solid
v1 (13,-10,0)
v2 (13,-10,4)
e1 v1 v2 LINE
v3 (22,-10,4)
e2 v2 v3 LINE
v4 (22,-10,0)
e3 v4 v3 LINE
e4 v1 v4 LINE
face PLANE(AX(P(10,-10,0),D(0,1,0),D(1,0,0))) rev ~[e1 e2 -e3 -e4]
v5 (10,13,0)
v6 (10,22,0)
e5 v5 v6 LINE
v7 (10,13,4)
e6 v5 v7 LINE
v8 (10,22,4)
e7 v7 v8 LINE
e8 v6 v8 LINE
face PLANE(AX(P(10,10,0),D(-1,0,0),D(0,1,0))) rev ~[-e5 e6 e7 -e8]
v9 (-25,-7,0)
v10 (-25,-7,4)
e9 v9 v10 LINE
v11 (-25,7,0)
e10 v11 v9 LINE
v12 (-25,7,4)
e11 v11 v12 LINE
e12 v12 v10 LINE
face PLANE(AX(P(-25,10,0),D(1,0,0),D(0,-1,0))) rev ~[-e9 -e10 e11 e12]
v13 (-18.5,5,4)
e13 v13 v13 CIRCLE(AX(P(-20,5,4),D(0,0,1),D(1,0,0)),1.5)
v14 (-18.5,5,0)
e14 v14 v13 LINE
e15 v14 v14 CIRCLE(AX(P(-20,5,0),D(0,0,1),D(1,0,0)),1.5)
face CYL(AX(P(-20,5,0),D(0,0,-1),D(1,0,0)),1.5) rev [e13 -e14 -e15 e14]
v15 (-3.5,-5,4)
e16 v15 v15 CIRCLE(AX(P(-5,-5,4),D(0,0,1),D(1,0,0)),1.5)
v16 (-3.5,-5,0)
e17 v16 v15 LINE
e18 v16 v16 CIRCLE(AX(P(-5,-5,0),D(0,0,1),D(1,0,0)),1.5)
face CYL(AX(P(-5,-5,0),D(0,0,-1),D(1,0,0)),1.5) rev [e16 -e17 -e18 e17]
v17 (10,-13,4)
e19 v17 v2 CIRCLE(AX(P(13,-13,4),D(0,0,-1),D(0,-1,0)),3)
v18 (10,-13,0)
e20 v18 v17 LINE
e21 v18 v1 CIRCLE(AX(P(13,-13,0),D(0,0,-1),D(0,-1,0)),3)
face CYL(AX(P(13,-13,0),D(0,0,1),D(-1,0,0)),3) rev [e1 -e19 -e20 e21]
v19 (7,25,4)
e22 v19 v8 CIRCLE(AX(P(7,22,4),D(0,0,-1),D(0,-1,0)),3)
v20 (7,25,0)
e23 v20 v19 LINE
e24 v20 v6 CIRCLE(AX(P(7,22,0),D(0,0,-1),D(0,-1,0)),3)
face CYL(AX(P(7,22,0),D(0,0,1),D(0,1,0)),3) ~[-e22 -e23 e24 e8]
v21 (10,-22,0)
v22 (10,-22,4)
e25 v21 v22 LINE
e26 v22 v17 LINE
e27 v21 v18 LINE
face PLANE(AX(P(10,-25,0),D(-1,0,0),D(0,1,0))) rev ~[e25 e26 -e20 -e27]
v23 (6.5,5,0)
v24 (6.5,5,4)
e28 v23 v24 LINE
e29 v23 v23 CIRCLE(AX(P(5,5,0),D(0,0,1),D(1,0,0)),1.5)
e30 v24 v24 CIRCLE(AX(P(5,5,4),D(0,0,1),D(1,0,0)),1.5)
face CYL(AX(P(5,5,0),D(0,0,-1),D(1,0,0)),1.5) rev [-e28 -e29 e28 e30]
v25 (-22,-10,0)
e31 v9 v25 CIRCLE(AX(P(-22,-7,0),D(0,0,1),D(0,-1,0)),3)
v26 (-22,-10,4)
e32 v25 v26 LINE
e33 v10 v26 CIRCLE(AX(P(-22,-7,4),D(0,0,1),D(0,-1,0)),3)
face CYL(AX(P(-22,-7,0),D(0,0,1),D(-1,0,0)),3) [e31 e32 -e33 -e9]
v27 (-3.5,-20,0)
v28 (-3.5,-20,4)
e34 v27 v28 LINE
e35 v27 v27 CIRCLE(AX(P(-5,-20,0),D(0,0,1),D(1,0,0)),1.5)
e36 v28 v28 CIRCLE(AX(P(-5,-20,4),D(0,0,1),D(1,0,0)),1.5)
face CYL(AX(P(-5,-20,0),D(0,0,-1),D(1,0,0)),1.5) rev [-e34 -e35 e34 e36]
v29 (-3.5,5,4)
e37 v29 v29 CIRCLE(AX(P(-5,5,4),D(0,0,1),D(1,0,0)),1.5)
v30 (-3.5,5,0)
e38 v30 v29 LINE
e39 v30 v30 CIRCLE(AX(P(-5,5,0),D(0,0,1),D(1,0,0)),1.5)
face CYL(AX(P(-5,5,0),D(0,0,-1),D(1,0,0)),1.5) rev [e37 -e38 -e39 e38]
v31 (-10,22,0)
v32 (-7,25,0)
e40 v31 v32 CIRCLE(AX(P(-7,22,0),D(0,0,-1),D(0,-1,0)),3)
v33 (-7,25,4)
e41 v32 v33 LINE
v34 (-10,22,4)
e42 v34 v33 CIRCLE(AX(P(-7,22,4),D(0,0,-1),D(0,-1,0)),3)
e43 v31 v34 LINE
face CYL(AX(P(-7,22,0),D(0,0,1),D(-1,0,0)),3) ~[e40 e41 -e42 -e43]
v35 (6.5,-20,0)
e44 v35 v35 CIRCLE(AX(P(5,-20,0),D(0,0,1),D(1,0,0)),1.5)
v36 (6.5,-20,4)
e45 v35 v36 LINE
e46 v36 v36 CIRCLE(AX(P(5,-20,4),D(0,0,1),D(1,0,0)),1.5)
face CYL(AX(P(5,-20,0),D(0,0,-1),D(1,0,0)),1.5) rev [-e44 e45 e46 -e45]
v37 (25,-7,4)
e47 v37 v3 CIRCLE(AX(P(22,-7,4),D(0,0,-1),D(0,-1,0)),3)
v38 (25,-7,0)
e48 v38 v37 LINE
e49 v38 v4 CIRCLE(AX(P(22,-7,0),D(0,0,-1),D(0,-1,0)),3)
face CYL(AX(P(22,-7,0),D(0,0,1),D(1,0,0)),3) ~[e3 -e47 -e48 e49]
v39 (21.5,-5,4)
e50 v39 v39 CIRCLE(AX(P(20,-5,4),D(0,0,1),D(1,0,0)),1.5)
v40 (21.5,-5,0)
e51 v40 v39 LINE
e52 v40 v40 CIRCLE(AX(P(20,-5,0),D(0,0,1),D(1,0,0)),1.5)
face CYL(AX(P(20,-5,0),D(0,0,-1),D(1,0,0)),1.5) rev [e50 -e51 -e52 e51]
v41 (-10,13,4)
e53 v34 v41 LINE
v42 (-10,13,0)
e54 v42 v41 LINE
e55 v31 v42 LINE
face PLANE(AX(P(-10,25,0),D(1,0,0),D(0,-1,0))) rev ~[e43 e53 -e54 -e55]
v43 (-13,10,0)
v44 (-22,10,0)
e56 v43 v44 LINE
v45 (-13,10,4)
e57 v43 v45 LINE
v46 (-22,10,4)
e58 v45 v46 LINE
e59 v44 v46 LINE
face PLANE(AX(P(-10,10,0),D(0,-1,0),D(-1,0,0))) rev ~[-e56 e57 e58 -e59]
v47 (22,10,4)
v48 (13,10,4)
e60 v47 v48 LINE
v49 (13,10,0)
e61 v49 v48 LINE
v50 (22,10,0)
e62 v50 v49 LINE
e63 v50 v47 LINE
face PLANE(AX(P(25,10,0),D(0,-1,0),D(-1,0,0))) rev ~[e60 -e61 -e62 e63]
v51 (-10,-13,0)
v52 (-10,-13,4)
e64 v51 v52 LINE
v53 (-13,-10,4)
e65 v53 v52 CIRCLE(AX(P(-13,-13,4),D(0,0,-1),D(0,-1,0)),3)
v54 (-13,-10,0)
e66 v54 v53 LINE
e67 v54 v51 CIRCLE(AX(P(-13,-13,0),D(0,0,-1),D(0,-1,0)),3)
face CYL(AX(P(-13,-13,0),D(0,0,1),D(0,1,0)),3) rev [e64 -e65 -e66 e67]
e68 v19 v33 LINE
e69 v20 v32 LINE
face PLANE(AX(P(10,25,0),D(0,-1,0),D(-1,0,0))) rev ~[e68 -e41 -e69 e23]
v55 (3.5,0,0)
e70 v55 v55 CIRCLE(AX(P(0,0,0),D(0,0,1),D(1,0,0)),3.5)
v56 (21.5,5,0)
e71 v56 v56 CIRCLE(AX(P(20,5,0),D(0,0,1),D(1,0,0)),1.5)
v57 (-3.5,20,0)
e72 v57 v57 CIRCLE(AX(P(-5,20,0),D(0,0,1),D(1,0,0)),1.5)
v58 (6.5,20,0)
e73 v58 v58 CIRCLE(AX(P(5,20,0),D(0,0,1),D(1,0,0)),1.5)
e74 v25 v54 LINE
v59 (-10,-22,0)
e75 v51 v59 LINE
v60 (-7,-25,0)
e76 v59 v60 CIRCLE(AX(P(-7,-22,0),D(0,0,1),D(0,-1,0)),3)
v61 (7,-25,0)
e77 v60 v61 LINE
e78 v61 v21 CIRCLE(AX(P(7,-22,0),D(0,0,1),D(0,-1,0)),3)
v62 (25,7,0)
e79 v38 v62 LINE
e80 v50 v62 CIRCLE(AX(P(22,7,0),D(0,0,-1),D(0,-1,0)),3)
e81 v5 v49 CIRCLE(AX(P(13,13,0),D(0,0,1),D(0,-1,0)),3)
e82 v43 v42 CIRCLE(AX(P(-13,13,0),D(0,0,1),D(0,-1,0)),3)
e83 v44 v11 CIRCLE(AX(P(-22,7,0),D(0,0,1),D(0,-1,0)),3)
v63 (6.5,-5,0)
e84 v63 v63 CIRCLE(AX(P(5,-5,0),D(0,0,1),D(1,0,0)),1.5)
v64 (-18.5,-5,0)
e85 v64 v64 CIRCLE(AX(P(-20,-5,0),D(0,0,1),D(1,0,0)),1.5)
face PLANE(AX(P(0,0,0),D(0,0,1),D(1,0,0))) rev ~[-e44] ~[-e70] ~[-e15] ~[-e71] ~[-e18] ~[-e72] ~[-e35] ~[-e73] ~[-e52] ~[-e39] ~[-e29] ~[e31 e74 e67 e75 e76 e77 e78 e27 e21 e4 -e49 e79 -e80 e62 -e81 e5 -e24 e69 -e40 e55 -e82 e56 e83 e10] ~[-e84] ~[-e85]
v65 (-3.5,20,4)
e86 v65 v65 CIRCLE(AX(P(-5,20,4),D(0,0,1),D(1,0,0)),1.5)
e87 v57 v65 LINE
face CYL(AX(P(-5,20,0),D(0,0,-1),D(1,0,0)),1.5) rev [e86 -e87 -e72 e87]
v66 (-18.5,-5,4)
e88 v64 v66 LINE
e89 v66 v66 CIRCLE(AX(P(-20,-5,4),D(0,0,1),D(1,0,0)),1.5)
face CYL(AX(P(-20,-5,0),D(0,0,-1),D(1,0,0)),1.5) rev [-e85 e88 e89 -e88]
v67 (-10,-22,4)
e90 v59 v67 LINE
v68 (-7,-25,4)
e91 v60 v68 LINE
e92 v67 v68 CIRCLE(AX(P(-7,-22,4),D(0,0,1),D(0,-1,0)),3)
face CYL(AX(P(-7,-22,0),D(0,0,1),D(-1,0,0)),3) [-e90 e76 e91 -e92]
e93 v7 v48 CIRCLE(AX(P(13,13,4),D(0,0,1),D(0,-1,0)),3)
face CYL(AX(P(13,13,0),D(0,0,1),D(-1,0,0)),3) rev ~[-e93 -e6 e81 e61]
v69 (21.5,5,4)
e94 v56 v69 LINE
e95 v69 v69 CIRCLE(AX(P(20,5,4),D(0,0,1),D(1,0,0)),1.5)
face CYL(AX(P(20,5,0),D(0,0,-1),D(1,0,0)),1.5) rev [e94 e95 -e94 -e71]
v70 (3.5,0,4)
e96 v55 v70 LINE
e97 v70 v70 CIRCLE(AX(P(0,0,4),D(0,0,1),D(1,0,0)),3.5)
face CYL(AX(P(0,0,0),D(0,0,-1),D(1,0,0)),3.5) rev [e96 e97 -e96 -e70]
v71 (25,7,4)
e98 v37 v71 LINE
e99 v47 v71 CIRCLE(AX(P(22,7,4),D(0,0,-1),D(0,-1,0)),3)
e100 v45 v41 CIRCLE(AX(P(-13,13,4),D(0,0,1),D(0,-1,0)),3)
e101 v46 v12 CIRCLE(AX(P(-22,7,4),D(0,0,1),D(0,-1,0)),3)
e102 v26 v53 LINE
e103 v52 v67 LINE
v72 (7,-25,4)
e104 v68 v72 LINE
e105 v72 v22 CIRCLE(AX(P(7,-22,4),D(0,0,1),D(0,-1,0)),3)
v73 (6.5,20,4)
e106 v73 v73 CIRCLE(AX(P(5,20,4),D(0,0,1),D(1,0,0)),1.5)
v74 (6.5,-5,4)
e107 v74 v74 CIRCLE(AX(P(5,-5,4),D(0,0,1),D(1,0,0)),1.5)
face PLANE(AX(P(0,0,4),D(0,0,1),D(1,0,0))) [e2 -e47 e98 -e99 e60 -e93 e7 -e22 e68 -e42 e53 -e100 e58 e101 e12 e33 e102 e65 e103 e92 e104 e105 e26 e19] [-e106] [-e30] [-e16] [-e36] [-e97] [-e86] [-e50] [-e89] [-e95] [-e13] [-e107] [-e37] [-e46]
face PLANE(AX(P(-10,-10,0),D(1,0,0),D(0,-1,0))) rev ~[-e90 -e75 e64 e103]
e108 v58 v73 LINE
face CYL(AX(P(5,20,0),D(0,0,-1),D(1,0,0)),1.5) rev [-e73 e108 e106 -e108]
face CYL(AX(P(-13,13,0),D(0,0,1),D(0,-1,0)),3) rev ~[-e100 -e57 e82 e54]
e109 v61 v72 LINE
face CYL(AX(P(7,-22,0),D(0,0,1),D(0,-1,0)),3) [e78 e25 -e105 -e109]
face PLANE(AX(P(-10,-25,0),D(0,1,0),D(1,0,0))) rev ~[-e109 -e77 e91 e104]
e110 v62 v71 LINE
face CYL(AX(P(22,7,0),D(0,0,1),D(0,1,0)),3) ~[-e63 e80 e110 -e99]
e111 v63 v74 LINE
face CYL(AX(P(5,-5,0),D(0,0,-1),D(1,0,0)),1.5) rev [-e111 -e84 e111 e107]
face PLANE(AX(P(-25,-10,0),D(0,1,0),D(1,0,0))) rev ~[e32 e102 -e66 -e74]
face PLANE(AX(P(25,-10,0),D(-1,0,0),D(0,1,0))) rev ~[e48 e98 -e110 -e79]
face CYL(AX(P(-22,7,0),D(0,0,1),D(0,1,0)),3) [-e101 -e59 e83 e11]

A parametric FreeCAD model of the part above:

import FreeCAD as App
import Part
import Sketcher
Q = App.Units.Quantity


def edges_at(feature, points):
    """Names of the edges that pass closest to the given points."""
    edges = feature.Shape.Edges
    near = lambda p: min(range(len(edges)), key=lambda i: edges[i].distToShape(Part.Vertex(*p))[0])
    return sorted({f"Edge{near(p) + 1}" for p in points})


def add_polygon(sketch, points):
    """Adds a closed chain of lines whose ends are joined by coincident constraints."""
    first, n = sketch.GeometryCount, len(points)
    for a, b in zip(points, points[1:] + points[:1]):
        sketch.addGeometry(Part.LineSegment(App.Vector(*a, 0), App.Vector(*b, 0)), False)
    for i in range(n):
        sketch.addConstraint(Sketcher.Constraint("Coincident", first + i, 2, first + (i + 1) % n, 1))

doc = App.newDocument("Part")
body = doc.addObject("PartDesign::Body", "Body")

# Sketch on XY plane
sketch1 = body.newObject("Sketcher::SketchObject", "Sketch")
sketch1.AttachmentSupport = (doc.getObject("XY_Plane"), [""])
sketch1.MapMode = "FlatFace"
add_polygon(sketch1, [(-10, 10), (-25, 10), (-25, -10), (-10, -10), (-10, -25), (10, -25), (10, -10), (25, -10), (25, 10), (10, 10), (10, 25), (-10, 25)])  # lines 0-11
sketch1.addGeometry(Part.Circle(App.Vector(-5, -20, 0), App.Vector(0, 0, 1), 1.5), False)  # 12
sketch1.addGeometry(Part.Circle(App.Vector(-20, -5, 0), App.Vector(0, 0, 1), 1.5), False)  # 13
sketch1.addGeometry(Part.Circle(App.Vector(-5, -5, 0), App.Vector(0, 0, 1), 1.5), False)  # 14
sketch1.addGeometry(Part.Circle(App.Vector(5, -20, 0), App.Vector(0, 0, 1), 1.5), False)  # 15
sketch1.addGeometry(Part.Circle(App.Vector(5, -5, 0), App.Vector(0, 0, 1), 1.5), False)  # 16
sketch1.addGeometry(Part.Circle(App.Vector(20, -5, 0), App.Vector(0, 0, 1), 1.5), False)  # 17
sketch1.addGeometry(Part.Circle(App.Vector(-20, 5, 0), App.Vector(0, 0, 1), 1.5), False)  # 18
sketch1.addGeometry(Part.Circle(App.Vector(-5, 5, 0), App.Vector(0, 0, 1), 1.5), False)  # 19
sketch1.addGeometry(Part.Circle(App.Vector(-5, 20, 0), App.Vector(0, 0, 1), 1.5), False)  # 20
sketch1.addGeometry(Part.Circle(App.Vector(0, 0, 0), App.Vector(0, 0, 1), 3.5), False)  # 21
sketch1.addGeometry(Part.Circle(App.Vector(5, 5, 0), App.Vector(0, 0, 1), 1.5), False)  # 22
sketch1.addGeometry(Part.Circle(App.Vector(20, 5, 0), App.Vector(0, 0, 1), 1.5), False)  # 23
sketch1.addGeometry(Part.Circle(App.Vector(5, 20, 0), App.Vector(0, 0, 1), 1.5), False)  # 24
sketch1.addConstraint(Sketcher.Constraint("Horizontal", 0))
sketch1.addConstraint(Sketcher.Constraint("Vertical", 1))
sketch1.addConstraint(Sketcher.Constraint("Horizontal", 2))
sketch1.addConstraint(Sketcher.Constraint("Vertical", 3))
sketch1.addConstraint(Sketcher.Constraint("Horizontal", 4))
sketch1.addConstraint(Sketcher.Constraint("Vertical", 5))
sketch1.addConstraint(Sketcher.Constraint("Horizontal", 6))
sketch1.addConstraint(Sketcher.Constraint("Vertical", 7))
sketch1.addConstraint(Sketcher.Constraint("Horizontal", 8))
sketch1.addConstraint(Sketcher.Constraint("Vertical", 9))
sketch1.addConstraint(Sketcher.Constraint("Horizontal", 10))
sketch1.addConstraint(Sketcher.Constraint("Vertical", 11))
sketch1.addConstraint(Sketcher.Constraint("Coincident", 21, 3, -1, 1))
sketch1.addConstraint(Sketcher.Constraint("Equal", 12, 13))
sketch1.addConstraint(Sketcher.Constraint("Equal", 13, 14))
sketch1.addConstraint(Sketcher.Constraint("Equal", 14, 15))
sketch1.addConstraint(Sketcher.Constraint("Equal", 15, 16))
sketch1.addConstraint(Sketcher.Constraint("Equal", 16, 17))
sketch1.addConstraint(Sketcher.Constraint("Equal", 17, 18))
sketch1.addConstraint(Sketcher.Constraint("Equal", 18, 19))
sketch1.addConstraint(Sketcher.Constraint("Equal", 19, 20))
sketch1.addConstraint(Sketcher.Constraint("Equal", 20, 22))
sketch1.addConstraint(Sketcher.Constraint("Equal", 22, 23))
sketch1.addConstraint(Sketcher.Constraint("Equal", 23, 24))
sketch1.addConstraint(Sketcher.Constraint("Symmetric", 17, 3, 18, 3, -1, 1))
sketch1.addConstraint(Sketcher.Constraint("Symmetric", 16, 3, 19, 3, -1, 1))
sketch1.addConstraint(Sketcher.Constraint("Symmetric", 15, 3, 20, 3, -1, 1))
sketch1.addConstraint(Sketcher.Constraint("Symmetric", 14, 3, 22, 3, -1, 1))
sketch1.addConstraint(Sketcher.Constraint("Symmetric", 13, 3, 23, 3, -1, 1))
sketch1.addConstraint(Sketcher.Constraint("Symmetric", 12, 3, 24, 3, -1, 1))
sketch1.addConstraint(Sketcher.Constraint("Symmetric", 0, 2, 6, 2, -1, 1))
sketch1.addConstraint(Sketcher.Constraint("Symmetric", 2, 2, 8, 2, -1, 1))
sketch1.addConstraint(Sketcher.Constraint("Symmetric", 4, 2, 10, 2, -1, 1))
sketch1.addConstraint(Sketcher.Constraint("Symmetric", 12, 3, 15, 3, -2))
sketch1.addConstraint(Sketcher.Constraint("Symmetric", 14, 3, 16, 3, -2))
sketch1.addConstraint(Sketcher.Constraint("Symmetric", 13, 3, 17, 3, -2))
sketch1.addConstraint(Sketcher.Constraint("Symmetric", 2, 2, 5, 2, -2))
sketch1.addConstraint(Sketcher.Constraint("Horizontal", 13, 3, 14, 3))
sketch1.addConstraint(Sketcher.Constraint("Vertical", 12, 3, 14, 3))
sketch1.addConstraint(Sketcher.Constraint("Equal", 10, 1))
sketch1.addConstraint(Sketcher.Constraint("Equal", 8, 3))
sketch1.addConstraint(Sketcher.Constraint("Diameter", 12, Q("3 mm")))
sketch1.addConstraint(Sketcher.Constraint("Diameter", 21, Q("7 mm")))
sketch1.addConstraint(Sketcher.Constraint("DistanceX", 0, 2, 0, 1, Q("15 mm")))
sketch1.addConstraint(Sketcher.Constraint("DistanceX", 4, 1, 4, 2, Q("20 mm")))
sketch1.addConstraint(Sketcher.Constraint("DistanceX", 12, 3, -1, 1, Q("5 mm")))
sketch1.addConstraint(Sketcher.Constraint("DistanceY", 12, 3, -1, 1, Q("20 mm")))
sketch1.addConstraint(Sketcher.Constraint("DistanceX", 13, 3, -1, 1, Q("20 mm")))
sketch1.addConstraint(Sketcher.Constraint("DistanceY", 13, 3, -1, 1, Q("5 mm")))
pad1 = body.newObject("PartDesign::Pad", "Pad")
pad1.Profile = sketch1
pad1.Length = 4
doc.recompute()

fillet = body.newObject("PartDesign::Fillet", "Fillet")
fillet.Base = (pad1, edges_at(pad1, [
    (25, 10, 2),
    (25, -10, 2),
    (10, -10, 2),
    (10, -25, 2),
    (-10, -25, 2),
    (-10, -10, 2),
    (-25, -10, 2),
    (-25, 10, 2),
    (-10, 10, 2),
    (-10, 25, 2),
    (10, 25, 2),
    (10, 10, 2),
]))
fillet.Radius = 3

doc.recompute()
